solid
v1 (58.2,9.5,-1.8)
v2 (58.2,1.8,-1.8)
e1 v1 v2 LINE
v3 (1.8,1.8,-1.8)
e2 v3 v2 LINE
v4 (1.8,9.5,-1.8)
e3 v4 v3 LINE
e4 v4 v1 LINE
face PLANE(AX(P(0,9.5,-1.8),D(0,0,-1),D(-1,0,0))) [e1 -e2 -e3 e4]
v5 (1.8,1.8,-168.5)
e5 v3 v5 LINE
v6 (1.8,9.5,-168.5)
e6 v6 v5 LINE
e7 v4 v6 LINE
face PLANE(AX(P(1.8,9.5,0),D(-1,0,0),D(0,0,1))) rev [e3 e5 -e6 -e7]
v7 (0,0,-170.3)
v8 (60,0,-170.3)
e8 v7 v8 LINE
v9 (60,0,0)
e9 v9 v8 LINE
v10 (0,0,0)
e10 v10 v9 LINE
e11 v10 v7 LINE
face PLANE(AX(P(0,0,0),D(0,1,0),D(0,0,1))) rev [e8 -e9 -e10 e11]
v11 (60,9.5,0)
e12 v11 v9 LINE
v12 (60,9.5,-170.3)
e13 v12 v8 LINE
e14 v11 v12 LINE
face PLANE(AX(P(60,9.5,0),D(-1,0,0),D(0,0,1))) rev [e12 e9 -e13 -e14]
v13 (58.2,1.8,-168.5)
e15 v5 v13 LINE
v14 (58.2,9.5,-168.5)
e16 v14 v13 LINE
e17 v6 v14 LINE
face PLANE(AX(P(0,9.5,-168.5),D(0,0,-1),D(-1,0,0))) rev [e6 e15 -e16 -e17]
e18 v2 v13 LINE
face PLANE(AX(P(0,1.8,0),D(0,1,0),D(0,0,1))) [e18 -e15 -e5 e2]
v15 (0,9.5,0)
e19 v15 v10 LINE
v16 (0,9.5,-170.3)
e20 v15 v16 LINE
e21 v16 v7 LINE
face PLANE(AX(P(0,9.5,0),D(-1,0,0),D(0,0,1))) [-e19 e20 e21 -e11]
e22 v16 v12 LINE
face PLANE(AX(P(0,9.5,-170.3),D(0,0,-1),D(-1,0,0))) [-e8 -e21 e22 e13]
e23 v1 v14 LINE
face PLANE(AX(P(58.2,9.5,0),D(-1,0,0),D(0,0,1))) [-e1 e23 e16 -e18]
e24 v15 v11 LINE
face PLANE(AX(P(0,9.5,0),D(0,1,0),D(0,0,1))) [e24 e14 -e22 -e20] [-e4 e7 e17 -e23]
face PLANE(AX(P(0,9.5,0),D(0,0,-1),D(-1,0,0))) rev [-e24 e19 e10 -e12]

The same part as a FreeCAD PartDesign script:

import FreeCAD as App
import Part
import Sketcher
from FreeCAD import Vector


def faces_at(feature, points):
    """Names of the faces that lie closest to the given points."""
    faces = feature.Shape.Faces
    near = lambda p: min(range(len(faces)), key=lambda i: faces[i].distToShape(Part.Vertex(*p))[0])
    return sorted({f"Face{near(p) + 1}" for p in points})

doc = App.newDocument("Part")
body = doc.addObject("PartDesign::Body", "Body")

# Sketch on XZ plane
sketch1 = body.newObject("Sketcher::SketchObject", "Sketch")
sketch1.AttachmentSupport = (doc.getObject("XZ_Plane"), [""])
sketch1.MapMode = "FlatFace"
sketch1.addGeometry([
    Part.LineSegment(Vector(0, -170, 0), Vector(0, 0, 0)),
    Part.LineSegment(Vector(0, 0, 0), Vector(60, 0, 0)),
    Part.LineSegment(Vector(60, 0, 0), Vector(60, -170, 0)),
    Part.LineSegment(Vector(60, -170, 0), Vector(0, -170, 0)),
], False)
sketch1.addConstraint([
    Sketcher.Constraint("Coincident", 0, 2, 1, 1),
    Sketcher.Constraint("Coincident", 1, 2, 2, 1),
    Sketcher.Constraint("Coincident", 2, 2, 3, 1),
    Sketcher.Constraint("Coincident", 3, 2, 0, 1),
    Sketcher.Constraint("Vertical", 0),
    Sketcher.Constraint("Horizontal", 1),
    Sketcher.Constraint("Vertical", 2),
    Sketcher.Constraint("Horizontal", 3),
    Sketcher.Constraint("Coincident", 0, 2, -1, 1),
    Sketcher.Constraint("DistanceX", 1, 1, 1, 2, 60.0),
    Sketcher.Constraint("DistanceY", 0, 1, 0, 2, 170.3),
])
pad1 = body.newObject("PartDesign::Pad", "Pad")
pad1.Profile = sketch1
pad1.Length = 9.5
pad1.Reversed = True
doc.recompute()

thickness = body.newObject("PartDesign::Thickness", "Thickness")
thickness.Base = (pad1, faces_at(pad1, [(30, 9.5, -85.15)]))
thickness.Value = 1.8
thickness.Reversed = True
thickness.Join = "Intersection"

doc.recompute()
